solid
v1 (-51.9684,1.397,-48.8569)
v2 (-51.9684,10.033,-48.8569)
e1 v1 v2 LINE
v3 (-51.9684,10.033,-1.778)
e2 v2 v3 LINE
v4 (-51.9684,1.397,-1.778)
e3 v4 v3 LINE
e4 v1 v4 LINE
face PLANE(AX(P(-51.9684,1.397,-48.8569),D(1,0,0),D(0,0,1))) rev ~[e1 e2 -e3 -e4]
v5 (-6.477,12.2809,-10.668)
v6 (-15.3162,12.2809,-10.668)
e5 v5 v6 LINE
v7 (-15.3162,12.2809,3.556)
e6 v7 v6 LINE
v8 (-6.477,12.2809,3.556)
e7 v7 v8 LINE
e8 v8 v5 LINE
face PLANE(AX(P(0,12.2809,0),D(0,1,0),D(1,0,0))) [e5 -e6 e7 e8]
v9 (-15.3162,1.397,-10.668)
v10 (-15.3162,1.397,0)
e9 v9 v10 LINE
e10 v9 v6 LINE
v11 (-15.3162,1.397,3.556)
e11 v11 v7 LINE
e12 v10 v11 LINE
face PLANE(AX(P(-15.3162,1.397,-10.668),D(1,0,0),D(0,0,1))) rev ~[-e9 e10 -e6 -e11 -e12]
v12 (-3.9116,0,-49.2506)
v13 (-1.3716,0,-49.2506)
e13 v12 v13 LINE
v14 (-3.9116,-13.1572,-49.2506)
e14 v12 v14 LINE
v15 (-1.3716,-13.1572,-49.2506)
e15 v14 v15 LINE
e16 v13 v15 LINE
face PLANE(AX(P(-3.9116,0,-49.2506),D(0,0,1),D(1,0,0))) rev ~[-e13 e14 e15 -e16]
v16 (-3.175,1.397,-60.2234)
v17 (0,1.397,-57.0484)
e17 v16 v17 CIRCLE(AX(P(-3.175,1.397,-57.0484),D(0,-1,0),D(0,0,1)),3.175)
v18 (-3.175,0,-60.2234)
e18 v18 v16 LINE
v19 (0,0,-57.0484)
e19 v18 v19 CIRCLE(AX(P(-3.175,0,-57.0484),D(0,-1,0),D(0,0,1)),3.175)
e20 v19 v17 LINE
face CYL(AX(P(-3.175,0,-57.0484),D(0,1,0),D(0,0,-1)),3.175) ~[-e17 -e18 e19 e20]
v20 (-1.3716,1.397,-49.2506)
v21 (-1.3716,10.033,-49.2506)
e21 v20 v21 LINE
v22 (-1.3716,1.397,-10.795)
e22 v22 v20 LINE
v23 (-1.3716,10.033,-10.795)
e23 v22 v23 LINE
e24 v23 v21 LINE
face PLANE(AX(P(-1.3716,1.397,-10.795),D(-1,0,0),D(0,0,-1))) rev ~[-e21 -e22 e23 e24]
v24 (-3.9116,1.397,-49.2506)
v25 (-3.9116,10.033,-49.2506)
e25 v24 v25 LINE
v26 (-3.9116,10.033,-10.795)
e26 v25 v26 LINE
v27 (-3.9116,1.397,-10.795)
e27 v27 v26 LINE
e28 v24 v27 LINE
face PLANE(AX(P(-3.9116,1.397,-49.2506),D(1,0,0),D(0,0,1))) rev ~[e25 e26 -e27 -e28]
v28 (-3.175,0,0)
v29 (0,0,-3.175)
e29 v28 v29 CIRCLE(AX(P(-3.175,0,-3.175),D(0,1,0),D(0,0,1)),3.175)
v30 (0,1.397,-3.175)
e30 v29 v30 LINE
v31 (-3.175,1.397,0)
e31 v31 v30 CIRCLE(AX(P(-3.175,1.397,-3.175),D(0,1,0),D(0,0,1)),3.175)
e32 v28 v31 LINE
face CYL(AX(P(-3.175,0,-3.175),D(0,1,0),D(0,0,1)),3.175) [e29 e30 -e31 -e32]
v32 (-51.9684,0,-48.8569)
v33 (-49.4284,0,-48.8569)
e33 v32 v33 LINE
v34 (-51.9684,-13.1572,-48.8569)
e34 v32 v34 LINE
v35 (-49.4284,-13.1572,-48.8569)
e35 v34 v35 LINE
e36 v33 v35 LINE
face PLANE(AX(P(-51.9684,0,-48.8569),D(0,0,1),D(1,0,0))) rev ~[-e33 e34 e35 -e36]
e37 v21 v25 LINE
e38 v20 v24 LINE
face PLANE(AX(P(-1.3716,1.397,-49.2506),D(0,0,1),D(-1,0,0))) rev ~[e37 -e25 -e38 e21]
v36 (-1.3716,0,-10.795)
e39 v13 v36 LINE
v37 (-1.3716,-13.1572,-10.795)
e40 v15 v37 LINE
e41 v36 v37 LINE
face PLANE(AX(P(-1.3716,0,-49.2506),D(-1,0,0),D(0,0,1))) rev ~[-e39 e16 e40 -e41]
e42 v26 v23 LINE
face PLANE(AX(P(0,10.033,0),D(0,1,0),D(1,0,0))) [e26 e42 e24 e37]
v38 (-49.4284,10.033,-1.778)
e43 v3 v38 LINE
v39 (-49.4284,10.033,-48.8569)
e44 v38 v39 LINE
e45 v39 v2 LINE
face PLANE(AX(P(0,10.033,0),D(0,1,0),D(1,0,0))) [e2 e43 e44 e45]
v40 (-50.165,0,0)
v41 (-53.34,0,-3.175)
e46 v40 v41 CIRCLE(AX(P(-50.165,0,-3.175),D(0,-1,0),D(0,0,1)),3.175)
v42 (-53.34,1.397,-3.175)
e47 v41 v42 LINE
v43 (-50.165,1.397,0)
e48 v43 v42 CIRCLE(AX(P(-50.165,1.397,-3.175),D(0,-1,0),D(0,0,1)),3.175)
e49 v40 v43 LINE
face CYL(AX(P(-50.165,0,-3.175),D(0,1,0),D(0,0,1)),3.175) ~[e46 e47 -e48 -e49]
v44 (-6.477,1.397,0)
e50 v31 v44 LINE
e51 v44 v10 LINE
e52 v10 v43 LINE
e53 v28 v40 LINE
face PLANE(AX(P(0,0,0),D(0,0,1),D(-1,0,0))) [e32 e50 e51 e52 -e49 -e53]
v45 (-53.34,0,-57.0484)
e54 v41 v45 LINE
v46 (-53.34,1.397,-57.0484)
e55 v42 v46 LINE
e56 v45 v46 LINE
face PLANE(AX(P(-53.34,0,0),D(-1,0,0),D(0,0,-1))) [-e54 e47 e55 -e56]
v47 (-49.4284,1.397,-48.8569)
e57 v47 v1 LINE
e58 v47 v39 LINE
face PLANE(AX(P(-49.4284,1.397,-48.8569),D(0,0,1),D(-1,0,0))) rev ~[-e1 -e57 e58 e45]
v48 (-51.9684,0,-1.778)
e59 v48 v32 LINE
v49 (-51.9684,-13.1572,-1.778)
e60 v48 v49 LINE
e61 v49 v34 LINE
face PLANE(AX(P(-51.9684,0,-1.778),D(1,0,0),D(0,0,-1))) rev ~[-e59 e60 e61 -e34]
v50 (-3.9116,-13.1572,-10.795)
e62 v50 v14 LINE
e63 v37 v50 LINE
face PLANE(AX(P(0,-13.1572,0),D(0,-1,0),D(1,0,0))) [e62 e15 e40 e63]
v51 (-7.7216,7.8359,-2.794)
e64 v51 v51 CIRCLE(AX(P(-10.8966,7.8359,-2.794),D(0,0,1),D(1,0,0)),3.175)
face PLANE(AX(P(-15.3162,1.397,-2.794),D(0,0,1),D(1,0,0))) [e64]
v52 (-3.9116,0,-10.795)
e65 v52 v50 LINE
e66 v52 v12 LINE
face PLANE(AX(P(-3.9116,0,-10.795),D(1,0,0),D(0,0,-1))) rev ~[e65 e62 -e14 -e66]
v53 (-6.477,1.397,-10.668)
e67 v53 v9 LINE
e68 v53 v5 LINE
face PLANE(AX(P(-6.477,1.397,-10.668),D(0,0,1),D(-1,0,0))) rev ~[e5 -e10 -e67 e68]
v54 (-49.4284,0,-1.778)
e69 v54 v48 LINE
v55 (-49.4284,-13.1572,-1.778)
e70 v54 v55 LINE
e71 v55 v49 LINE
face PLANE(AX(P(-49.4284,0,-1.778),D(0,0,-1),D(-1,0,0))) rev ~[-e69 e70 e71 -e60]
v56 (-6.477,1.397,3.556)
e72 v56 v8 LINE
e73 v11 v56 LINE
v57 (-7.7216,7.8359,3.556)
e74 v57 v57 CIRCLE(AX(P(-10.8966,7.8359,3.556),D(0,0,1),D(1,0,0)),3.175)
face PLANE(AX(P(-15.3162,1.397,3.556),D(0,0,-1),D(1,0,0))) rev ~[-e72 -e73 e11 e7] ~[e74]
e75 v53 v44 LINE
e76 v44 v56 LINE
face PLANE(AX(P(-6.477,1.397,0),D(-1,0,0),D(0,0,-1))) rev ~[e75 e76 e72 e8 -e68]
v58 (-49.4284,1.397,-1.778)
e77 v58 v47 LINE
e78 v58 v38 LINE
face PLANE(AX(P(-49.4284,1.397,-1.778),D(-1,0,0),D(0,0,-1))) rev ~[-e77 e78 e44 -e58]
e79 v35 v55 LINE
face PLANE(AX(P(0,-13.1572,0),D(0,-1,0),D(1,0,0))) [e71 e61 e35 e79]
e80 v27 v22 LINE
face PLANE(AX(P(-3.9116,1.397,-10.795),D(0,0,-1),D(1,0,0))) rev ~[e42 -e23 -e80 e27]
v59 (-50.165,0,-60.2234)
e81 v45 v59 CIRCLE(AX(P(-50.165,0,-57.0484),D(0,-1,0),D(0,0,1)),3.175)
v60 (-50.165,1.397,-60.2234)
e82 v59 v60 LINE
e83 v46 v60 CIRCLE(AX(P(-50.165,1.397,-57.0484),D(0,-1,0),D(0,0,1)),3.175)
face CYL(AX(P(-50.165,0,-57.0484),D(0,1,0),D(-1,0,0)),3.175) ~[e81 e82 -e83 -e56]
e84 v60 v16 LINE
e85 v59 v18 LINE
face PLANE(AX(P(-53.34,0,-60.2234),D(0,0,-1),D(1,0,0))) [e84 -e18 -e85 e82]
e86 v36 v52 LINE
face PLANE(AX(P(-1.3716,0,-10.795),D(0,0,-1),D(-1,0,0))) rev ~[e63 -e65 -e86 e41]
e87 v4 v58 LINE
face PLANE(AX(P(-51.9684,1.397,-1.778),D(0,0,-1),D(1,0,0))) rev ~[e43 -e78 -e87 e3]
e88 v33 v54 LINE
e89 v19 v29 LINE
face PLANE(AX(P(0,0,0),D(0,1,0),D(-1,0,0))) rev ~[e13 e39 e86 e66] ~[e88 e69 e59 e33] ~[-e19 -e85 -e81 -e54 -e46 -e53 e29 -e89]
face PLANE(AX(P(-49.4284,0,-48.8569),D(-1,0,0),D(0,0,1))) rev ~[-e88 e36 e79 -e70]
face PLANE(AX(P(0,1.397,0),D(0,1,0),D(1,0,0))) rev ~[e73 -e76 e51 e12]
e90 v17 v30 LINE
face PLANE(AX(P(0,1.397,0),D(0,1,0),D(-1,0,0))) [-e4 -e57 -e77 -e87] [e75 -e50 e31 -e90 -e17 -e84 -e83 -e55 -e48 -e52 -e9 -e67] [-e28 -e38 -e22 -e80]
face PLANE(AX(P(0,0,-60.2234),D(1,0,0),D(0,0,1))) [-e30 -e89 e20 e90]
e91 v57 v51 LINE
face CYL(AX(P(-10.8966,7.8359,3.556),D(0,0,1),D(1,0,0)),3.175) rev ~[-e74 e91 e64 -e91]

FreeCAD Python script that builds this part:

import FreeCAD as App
import Part
import Sketcher
from FreeCAD import Vector
Q = App.Units.Quantity


def edges_at(feature, points):
    """Names of the edges that pass closest to the given points."""
    edges = feature.Shape.Edges
    near = lambda p: min(range(len(edges)), key=lambda i: edges[i].distToShape(Part.Vertex(*p))[0])
    return sorted({f"Edge{near(p) + 1}" for p in points})


def add_polygon(sketch, points):
    """Adds a closed chain of lines whose ends are joined by coincident constraints."""
    first, n = sketch.GeometryCount, len(points)
    for a, b in zip(points, points[1:] + points[:1]):
        sketch.addGeometry(Part.LineSegment(App.Vector(*a, 0), App.Vector(*b, 0)), False)
    for i in range(n):
        sketch.addConstraint(Sketcher.Constraint("Coincident", first + i, 2, first + (i + 1) % n, 1))

doc = App.newDocument("Part")
body = doc.addObject("PartDesign::Body", "Body")

# Sketch on XZ plane
sketch1 = body.newObject("Sketcher::SketchObject", "Sketch")
sketch1.AttachmentSupport = (doc.getObject("XZ_Plane"), [""])
sketch1.MapMode = "FlatFace"
add_polygon(sketch1, [(-53, 0), (0, 0), (0, -60), (-53, -60)])  # lines 0-3
sketch1.addConstraint([
    Sketcher.Constraint("Horizontal", 0),
    Sketcher.Constraint("Vertical", 1),
    Sketcher.Constraint("Horizontal", 2),
    Sketcher.Constraint("Vertical", 3),
    Sketcher.Constraint("Coincident", 0, 2, -1, 1),
    Sketcher.Constraint("DistanceX", 0, 1, 0, 2, Q("2.1 in")),
    Sketcher.Constraint("DistanceY", 1, 2, 1, 1, Q("2.371 in")),
])
pad1 = body.newObject("PartDesign::Pad", "Pad")
pad1.Profile = sketch1
pad1.Length = Q("0.055 in")
pad1.Reversed = True
doc.recompute()

fillet = body.newObject("PartDesign::Fillet", "Fillet")
fillet.Base = (pad1, edges_at(pad1, [
    (0, 0.699, -60.223),
    (-53.34, 0.699, -60.223),
    (0, 0.699, 0),
    (-53.34, 0.699, 0),
]))
fillet.Radius = Q("0.125 in")

# Sketch on XZ plane
sketch2 = body.newObject("Sketcher::SketchObject", "Sketch001")
sketch2.AttachmentSupport = (doc.getObject("XZ_Plane"), [""])
sketch2.MapMode = "FlatFace"
sketch2.AttachmentOffset = App.Placement(Vector(0, 0, -0.055 * 25.4), App.Rotation())
add_polygon(sketch2, [(-3.9, -49.3), (-3.9, -10.8), (-1.4, -10.8), (-1.4, -49.3)])  # lines 0-3
add_polygon(sketch2, [(-52, -48.9), (-52, -1.8), (-49.4, -1.8), (-49.4, -48.9)])  # lines 4-7
sketch2.addConstraint([
    Sketcher.Constraint("Vertical", 0),
    Sketcher.Constraint("Horizontal", 1),
    Sketcher.Constraint("Vertical", 2),
    Sketcher.Constraint("Horizontal", 3),
    Sketcher.Constraint("Vertical", 4),
    Sketcher.Constraint("Horizontal", 5),
    Sketcher.Constraint("Vertical", 6),
    Sketcher.Constraint("Horizontal", 7),
    Sketcher.Constraint("Equal", 3, 5),
    Sketcher.Constraint("DistanceX", 1, 1, 1, 2, Q("0.1 in")),
    Sketcher.Constraint("DistanceY", 0, 1, 0, 2, Q("1.514 in")),
    Sketcher.Constraint("DistanceY", 4, 2, -1, 1, Q("0.07 in")),
    Sketcher.Constraint("DistanceY", 4, 1, 4, 2, Q("1.8535 in")),
    Sketcher.Constraint("DistanceX", 0, 2, -1, 1, Q("0.154 in")),
    Sketcher.Constraint("DistanceY", 0, 2, -1, 1, Q("0.425 in")),
    Sketcher.Constraint("DistanceX", 4, 2, -1, 1, Q("2.046 in")),
])
pad2 = body.newObject("PartDesign::Pad", "Pad001")
pad2.Profile = sketch2
pad2.Length = Q("0.34 in")
pad2.Reversed = True

# Sketch on XZ plane
sketch3 = body.newObject("Sketcher::SketchObject", "Sketch002")
sketch3.AttachmentSupport = (doc.getObject("XZ_Plane"), [""])
sketch3.MapMode = "FlatFace"
sketch3.AttachmentOffset = App.Placement(Vector(0, 0, -0.055 * 25.4), App.Rotation())
add_polygon(sketch3, [(-15, -11), (-15, 4), (-6, 4), (-6, -11)])  # lines 0-3
sketch3.addConstraint([
    Sketcher.Constraint("Vertical", 0),
    Sketcher.Constraint("Horizontal", 1),
    Sketcher.Constraint("Vertical", 2),
    Sketcher.Constraint("Horizontal", 3),
    Sketcher.Constraint("DistanceY", 0, 1, 0, 2, Q("0.56 in")),
    Sketcher.Constraint("DistanceX", 1, 1, 1, 2, Q("0.348 in")),
    Sketcher.Constraint("DistanceY", -1, 1, 0, 2, Q("0.14 in")),
    Sketcher.Constraint("DistanceX", 1, 2, -1, 1, Q("0.255 in")),
])
pad3 = body.newObject("PartDesign::Pad", "Pad002")
pad3.Profile = sketch3
pad3.Length = Q("0.4285 in")
pad3.Reversed = True

# Sketch on XZ plane
sketch4 = body.newObject("Sketcher::SketchObject", "Sketch003")
sketch4.AttachmentSupport = (doc.getObject("XZ_Plane"), [""])
sketch4.MapMode = "FlatFace"
add_polygon(sketch4, [(-52, -48.9), (-49.4, -48.9), (-49.4, -1.8), (-52, -1.8)])  # lines 0-3
add_polygon(sketch4, [(-1.4, -49.3), (-1.4, -10.8), (-3.9, -10.8), (-3.9, -49.3)])  # lines 4-7
sketch4.addConstraint([
    Sketcher.Constraint("Horizontal", 0),
    Sketcher.Constraint("Vertical", 1),
    Sketcher.Constraint("Horizontal", 2),
    Sketcher.Constraint("Vertical", 3),
    Sketcher.Constraint("Vertical", 4),
    Sketcher.Constraint("Horizontal", 5),
    Sketcher.Constraint("Vertical", 6),
    Sketcher.Constraint("Horizontal", 7),
    Sketcher.Constraint("Equal", 2, 5),
    Sketcher.Constraint("DistanceX", 0, 1, 0, 2, Q("0.1 in")),
    Sketcher.Constraint("DistanceY", 4, 1, 4, 2, Q("1.514 in")),
    Sketcher.Constraint("DistanceY", 1, 2, -1, 1, Q("0.07 in")),
    Sketcher.Constraint("DistanceY", 1, 1, 1, 2, Q("1.8535 in")),
    Sketcher.Constraint("DistanceY", 4, 2, -1, 1, Q("0.425 in")),
    Sketcher.Constraint("DistanceX", 5, 2, -1, 1, Q("0.154 in")),
    Sketcher.Constraint("DistanceX", 0, 2, -1, 1, Q("1.946 in")),
])
pad4 = body.newObject("PartDesign::Pad", "Pad003")
pad4.Profile = sketch4
pad4.Length = Q("0.518 in")

# Sketch on XY plane
sketch5 = body.newObject("Sketcher::SketchObject", "Sketch004")
sketch5.AttachmentSupport = (doc.getObject("XY_Plane"), [""])
sketch5.MapMode = "FlatFace"
sketch5.AttachmentOffset = App.Placement(Vector(0, 0, 0.14 * 25.4), App.Rotation())
sketch5.addGeometry(Part.Circle(Vector(-10.9, 7.8, 0), Vector(0, 0, 1), 3.2), False)
sketch5.addConstraint([
    Sketcher.Constraint("Diameter", 0, Q("0.25 in")),
    Sketcher.Constraint("DistanceX", 0, 3, -1, 1, Q("0.429 in")),
    Sketcher.Constraint("DistanceY", -1, 1, 0, 3, Q("0.3085 in")),
])
pocket1 = body.newObject("PartDesign::Pocket", "Pocket")
pocket1.Profile = sketch5
pocket1.Length = Q("0.25 in")

doc.recompute()
